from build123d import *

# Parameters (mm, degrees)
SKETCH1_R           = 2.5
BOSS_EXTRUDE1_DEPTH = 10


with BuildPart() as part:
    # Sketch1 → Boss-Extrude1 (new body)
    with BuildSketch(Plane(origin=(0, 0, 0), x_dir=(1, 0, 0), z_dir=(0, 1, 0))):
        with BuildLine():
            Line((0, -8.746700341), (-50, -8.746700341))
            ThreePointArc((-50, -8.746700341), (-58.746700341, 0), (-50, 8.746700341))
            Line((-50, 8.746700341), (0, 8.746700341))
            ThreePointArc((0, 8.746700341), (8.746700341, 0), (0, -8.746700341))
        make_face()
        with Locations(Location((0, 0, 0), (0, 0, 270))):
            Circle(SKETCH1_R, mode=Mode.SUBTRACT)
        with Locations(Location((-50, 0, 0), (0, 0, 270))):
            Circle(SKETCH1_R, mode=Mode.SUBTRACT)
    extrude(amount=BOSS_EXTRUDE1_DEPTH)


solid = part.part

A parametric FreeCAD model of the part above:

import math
import FreeCAD as App
import Part
import Sketcher

V = App.Vector
Q = App.Units.Quantity

doc = App.newDocument("Part")
params = doc.addObject("Spreadsheet::Sheet", "Params")
for row, (alias, value) in enumerate([
    ("sketch1_diameter", "5 mm"),
    ("sketch1_width", "50 mm"),
    ("pad1_length", "10 mm"),
], start=1):
    params.set(f"A{row}", alias)
    params.set(f"B{row}", "=" + value)
    params.setAlias(f"B{row}", alias)

body = doc.addObject("PartDesign::Body", "Body")

sketch1 = body.newObject("Sketcher::SketchObject", "Sketch")
sketch1.AttachmentSupport = (doc.getObject("XZ_Plane"), [""])
sketch1.MapMode = "FlatFace"
sketch1.addGeometry(Part.LineSegment(V(-50, 8.7467, 0), V(0, 8.7467, 0)), False)
sketch1.addGeometry(Part.ArcOfCircle(Part.Circle(V(0, 0, 0), V(0, 0, 1), 8.7467), math.radians(-90), math.radians(90)), False)
sketch1.addGeometry(Part.LineSegment(V(0, -8.7467, 0), V(-50, -8.7467, 0)), False)
sketch1.addGeometry(Part.ArcOfCircle(Part.Circle(V(-50, 0, 0), V(0, 0, 1), 8.7467), math.radians(90), math.radians(270)), False)
sketch1.addGeometry(Part.Circle(V(0, 0, 0), V(0, 0, 1), 2.5), False)
sketch1.addGeometry(Part.Circle(V(-50, 0, 0), V(0, 0, 1), 2.5), False)
sketch1.addConstraint(Sketcher.Constraint("Tangent", 0, 2, 1, 2))
sketch1.addConstraint(Sketcher.Constraint("Tangent", 1, 1, 2, 1))
sketch1.addConstraint(Sketcher.Constraint("Tangent", 2, 2, 3, 2))
sketch1.addConstraint(Sketcher.Constraint("Tangent", 3, 1, 0, 1))
sketch1.addConstraint(Sketcher.Constraint("Horizontal", 0))
sketch1.addConstraint(Sketcher.Constraint("Horizontal", 2))
sketch1.addConstraint(Sketcher.Constraint("Coincident", 1, 3, -1, 1))
sketch1.addConstraint(Sketcher.Constraint("Coincident", 4, 3, -1, 1))
sketch1.addConstraint(Sketcher.Constraint("Coincident", 5, 3, 3, 3))
sketch1.addConstraint(Sketcher.Constraint("Equal", 4, 5))
sketch1.addConstraint(Sketcher.Constraint("Diameter", 4, Q("5 mm")))
sketch1.addConstraint(Sketcher.Constraint("DistanceX", 0, 1, 0, 2, Q("50 mm")))
sketch1.addConstraint(Sketcher.Constraint("Radius", 1, Q("8.7467 mm")))
sketch1.setExpression("Constraints[10]", "Params.sketch1_diameter")
sketch1.setExpression("Constraints[11]", "Params.sketch1_width")
pad1 = body.newObject("PartDesign::Pad", "Pad")
pad1.Profile = sketch1
pad1.setExpression("Length", "Params.pad1_length")
pad1.Reversed = True

doc.recompute()
